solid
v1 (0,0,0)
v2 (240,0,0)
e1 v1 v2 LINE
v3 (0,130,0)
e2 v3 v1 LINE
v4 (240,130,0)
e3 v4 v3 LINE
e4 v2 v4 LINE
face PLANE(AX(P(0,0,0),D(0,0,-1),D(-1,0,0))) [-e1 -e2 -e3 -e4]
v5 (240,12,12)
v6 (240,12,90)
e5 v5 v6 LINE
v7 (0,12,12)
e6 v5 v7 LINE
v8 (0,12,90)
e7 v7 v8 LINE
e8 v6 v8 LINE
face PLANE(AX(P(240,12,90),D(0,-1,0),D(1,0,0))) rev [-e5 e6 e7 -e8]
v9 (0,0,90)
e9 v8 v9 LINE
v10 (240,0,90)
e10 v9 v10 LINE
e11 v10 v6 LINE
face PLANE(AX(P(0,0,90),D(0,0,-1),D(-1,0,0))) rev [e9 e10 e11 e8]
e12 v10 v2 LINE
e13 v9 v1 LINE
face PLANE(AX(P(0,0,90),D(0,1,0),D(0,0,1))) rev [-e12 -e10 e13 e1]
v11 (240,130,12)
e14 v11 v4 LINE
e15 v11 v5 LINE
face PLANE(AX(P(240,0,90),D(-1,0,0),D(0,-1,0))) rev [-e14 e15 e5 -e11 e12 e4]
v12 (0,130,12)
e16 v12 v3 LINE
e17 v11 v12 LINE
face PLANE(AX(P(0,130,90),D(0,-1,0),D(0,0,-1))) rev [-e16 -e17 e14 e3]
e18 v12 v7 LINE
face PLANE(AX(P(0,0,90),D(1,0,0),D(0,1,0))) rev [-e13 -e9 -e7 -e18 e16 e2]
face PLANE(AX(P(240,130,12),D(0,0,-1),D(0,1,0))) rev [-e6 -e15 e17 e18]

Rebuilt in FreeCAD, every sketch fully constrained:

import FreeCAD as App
import Part
import Sketcher

V = App.Vector
Q = App.Units.Quantity

doc = App.newDocument("Part")
body = doc.addObject("PartDesign::Body", "Body")

# Sketch on XY plane
sketch1 = body.newObject("Sketcher::SketchObject", "Sketch")
sketch1.AttachmentSupport = (doc.getObject("XY_Plane"), [""])
sketch1.MapMode = "FlatFace"
sketch1.addGeometry(Part.LineSegment(V(0, 130, 0), V(0, 0, 0)), False)
sketch1.addGeometry(Part.LineSegment(V(0, 0, 0), V(240, 0, 0)), False)
sketch1.addGeometry(Part.LineSegment(V(240, 0, 0), V(240, 130, 0)), False)
sketch1.addGeometry(Part.LineSegment(V(240, 130, 0), V(0, 130, 0)), False)
sketch1.addConstraint(Sketcher.Constraint("Coincident", 0, 2, 1, 1))
sketch1.addConstraint(Sketcher.Constraint("Coincident", 1, 2, 2, 1))
sketch1.addConstraint(Sketcher.Constraint("Coincident", 2, 2, 3, 1))
sketch1.addConstraint(Sketcher.Constraint("Coincident", 3, 2, 0, 1))
sketch1.addConstraint(Sketcher.Constraint("Vertical", 0))
sketch1.addConstraint(Sketcher.Constraint("Horizontal", 1))
sketch1.addConstraint(Sketcher.Constraint("Vertical", 2))
sketch1.addConstraint(Sketcher.Constraint("Horizontal", 3))
sketch1.addConstraint(Sketcher.Constraint("Coincident", 0, 2, -1, 1))
sketch1.addConstraint(Sketcher.Constraint("DistanceX", 1, 1, 1, 2, Q("240 mm")))
sketch1.addConstraint(Sketcher.Constraint("DistanceY", 0, 2, 0, 1, Q("130 mm")))
pad1 = body.newObject("PartDesign::Pad", "Pad")
pad1.Profile = sketch1
pad1.Length = 90

# Sketch on YZ plane
sketch2 = body.newObject("Sketcher::SketchObject", "Sketch001")
sketch2.AttachmentSupport = (doc.getObject("YZ_Plane"), [""])
sketch2.MapMode = "FlatFace"
sketch2.addGeometry(Part.LineSegment(V(130, 12, 0), V(12, 12, 0)), False)
sketch2.addGeometry(Part.LineSegment(V(12, 12, 0), V(12, 90, 0)), False)
sketch2.addGeometry(Part.LineSegment(V(12, 90, 0), V(130, 90, 0)), False)
sketch2.addGeometry(Part.LineSegment(V(130, 90, 0), V(130, 12, 0)), False)
sketch2.addConstraint(Sketcher.Constraint("Coincident", 0, 2, 1, 1))
sketch2.addConstraint(Sketcher.Constraint("Coincident", 1, 2, 2, 1))
sketch2.addConstraint(Sketcher.Constraint("Coincident", 2, 2, 3, 1))
sketch2.addConstraint(Sketcher.Constraint("Coincident", 3, 2, 0, 1))
sketch2.addConstraint(Sketcher.Constraint("Horizontal", 0))
sketch2.addConstraint(Sketcher.Constraint("Vertical", 1))
sketch2.addConstraint(Sketcher.Constraint("Horizontal", 2))
sketch2.addConstraint(Sketcher.Constraint("Vertical", 3))
sketch2.addConstraint(Sketcher.Constraint("DistanceX", 0, 2, 0, 1, Q("118 mm")))
sketch2.addConstraint(Sketcher.Constraint("DistanceY", 1, 1, 1, 2, Q("78 mm")))
sketch2.addConstraint(Sketcher.Constraint("DistanceX", -1, 1, 0, 2, Q("12 mm")))
sketch2.addConstraint(Sketcher.Constraint("DistanceY", -1, 1, 0, 2, Q("12 mm")))
pocket1 = body.newObject("PartDesign::Pocket", "Pocket")
pocket1.Profile = sketch2
pocket1.Type = "ThroughAll"
pocket1.Reversed = True

doc.recompute()
